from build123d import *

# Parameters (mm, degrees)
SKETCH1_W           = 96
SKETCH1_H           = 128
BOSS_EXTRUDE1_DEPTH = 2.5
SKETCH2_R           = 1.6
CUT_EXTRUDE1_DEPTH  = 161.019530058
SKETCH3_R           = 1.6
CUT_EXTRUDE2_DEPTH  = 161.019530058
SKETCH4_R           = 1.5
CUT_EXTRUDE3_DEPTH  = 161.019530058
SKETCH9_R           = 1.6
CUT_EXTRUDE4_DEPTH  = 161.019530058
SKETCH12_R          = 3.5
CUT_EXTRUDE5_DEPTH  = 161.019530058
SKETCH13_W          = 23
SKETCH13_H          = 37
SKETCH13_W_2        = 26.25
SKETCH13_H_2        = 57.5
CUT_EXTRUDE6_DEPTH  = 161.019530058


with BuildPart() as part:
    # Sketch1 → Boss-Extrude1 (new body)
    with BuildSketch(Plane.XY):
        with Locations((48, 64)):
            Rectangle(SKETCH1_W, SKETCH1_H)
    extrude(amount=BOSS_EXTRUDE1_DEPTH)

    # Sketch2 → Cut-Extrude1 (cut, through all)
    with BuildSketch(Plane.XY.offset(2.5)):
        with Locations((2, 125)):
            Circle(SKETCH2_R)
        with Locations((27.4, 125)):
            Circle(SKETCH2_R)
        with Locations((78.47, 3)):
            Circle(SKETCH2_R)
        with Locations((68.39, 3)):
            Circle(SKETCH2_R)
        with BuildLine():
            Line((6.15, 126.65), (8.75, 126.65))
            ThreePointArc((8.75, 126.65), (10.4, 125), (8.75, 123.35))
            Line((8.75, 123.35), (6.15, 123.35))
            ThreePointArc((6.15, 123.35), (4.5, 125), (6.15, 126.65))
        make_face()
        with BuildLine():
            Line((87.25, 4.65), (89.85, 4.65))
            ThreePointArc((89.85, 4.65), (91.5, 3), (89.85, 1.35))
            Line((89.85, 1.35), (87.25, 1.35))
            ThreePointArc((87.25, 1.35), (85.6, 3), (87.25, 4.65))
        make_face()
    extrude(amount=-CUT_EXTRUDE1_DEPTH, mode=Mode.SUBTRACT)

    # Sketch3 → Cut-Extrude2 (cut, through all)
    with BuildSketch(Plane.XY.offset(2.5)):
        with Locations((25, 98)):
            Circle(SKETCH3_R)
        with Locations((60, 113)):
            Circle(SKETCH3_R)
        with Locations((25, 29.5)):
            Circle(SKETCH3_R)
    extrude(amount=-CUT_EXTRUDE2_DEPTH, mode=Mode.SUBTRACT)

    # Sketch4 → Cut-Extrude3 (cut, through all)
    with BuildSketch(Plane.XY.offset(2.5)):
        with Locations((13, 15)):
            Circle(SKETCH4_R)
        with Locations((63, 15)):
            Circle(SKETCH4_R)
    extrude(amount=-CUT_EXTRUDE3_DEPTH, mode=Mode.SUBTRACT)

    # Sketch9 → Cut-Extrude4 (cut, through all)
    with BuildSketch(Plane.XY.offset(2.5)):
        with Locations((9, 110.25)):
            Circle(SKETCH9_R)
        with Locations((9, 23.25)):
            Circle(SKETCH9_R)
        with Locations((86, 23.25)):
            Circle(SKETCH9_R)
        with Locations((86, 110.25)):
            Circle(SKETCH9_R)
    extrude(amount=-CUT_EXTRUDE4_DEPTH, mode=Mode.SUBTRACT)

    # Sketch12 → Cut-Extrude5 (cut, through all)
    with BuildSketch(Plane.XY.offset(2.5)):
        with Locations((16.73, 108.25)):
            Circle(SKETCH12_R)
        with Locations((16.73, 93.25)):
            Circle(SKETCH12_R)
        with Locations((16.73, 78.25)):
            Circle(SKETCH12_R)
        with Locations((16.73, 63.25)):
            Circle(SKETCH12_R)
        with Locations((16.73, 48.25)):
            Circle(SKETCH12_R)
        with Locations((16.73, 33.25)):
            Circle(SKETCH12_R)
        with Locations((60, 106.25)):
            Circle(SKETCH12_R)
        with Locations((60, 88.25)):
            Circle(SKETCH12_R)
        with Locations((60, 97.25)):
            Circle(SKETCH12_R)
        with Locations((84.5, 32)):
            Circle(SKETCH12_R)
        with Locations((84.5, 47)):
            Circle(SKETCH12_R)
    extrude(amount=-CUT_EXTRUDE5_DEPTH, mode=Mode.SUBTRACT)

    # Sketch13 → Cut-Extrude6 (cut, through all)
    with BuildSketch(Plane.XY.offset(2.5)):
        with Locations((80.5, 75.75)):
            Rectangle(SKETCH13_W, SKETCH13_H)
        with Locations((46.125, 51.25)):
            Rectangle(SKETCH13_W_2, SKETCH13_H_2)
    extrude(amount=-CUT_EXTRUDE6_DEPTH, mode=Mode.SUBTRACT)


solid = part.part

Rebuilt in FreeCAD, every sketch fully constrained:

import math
import FreeCAD as App
import Part
import Sketcher
from FreeCAD import Vector


def add_polygon(sketch, points):
    """Adds a closed chain of lines whose ends are joined by coincident constraints."""
    first, n = sketch.GeometryCount, len(points)
    for a, b in zip(points, points[1:] + points[:1]):
        sketch.addGeometry(Part.LineSegment(App.Vector(*a, 0), App.Vector(*b, 0)), False)
    for i in range(n):
        sketch.addConstraint(Sketcher.Constraint("Coincident", first + i, 2, first + (i + 1) % n, 1))

doc = App.newDocument("Part")
params = doc.addObject("Spreadsheet::Sheet", "Params")
for row, (alias, value) in enumerate([
    ("sketch1_width", "96 mm"),
    ("sketch1_height", "128 mm"),
    ("pad1_length", "2.5 mm"),
    ("sketch2_diameter", "3.2 mm"),
    ("sketch2_radius", "1.65 mm"),
    ("sketch2_width", "2.6 mm"),
    ("sketch3_diameter", "3.2 mm"),
    ("sketch4_diameter", "3 mm"),
    ("sketch5_diameter", "3.2 mm"),
    ("sketch6_diameter", "7 mm"),
    ("sketch7_width", "23 mm"),
    ("sketch7_height", "37 mm"),
    ("sketch7_height2", "57.5 mm"),
    ("sketch7_width2", "26.25 mm"),
], start=1):
    params.set(f"A{row}", alias)
    params.set(f"B{row}", "=" + value)
    params.setAlias(f"B{row}", alias)

body = doc.addObject("PartDesign::Body", "Body")

# Sketch on XY plane
sketch1 = doc.addObject("Sketcher::SketchObject", "Sketch")
body.addObject(sketch1)
sketch1.AttachmentSupport = (doc.XY_Plane, [""])
sketch1.MapMode = "FlatFace"
add_polygon(sketch1, [(0, 128), (0, 0), (96, 0), (96, 128)])  # lines 0-3
sketch1.addConstraint([
    Sketcher.Constraint("Vertical", 0),
    Sketcher.Constraint("Horizontal", 1),
    Sketcher.Constraint("Vertical", 2),
    Sketcher.Constraint("Horizontal", 3),
    Sketcher.Constraint("Coincident", 0, 2, -1, 1),
    Sketcher.Constraint("DistanceX", 1, 1, 1, 2, 96.0),
    Sketcher.Constraint("DistanceY", 0, 2, 0, 1, 128.0),
])
sketch1.setExpression("Constraints[9]", "Params.sketch1_width")
sketch1.setExpression("Constraints[10]", "Params.sketch1_height")
pad1 = doc.addObject("PartDesign::Pad", "Pad")
body.addObject(pad1)
pad1.Profile = sketch1
pad1.setExpression("Length", "Params.pad1_length")

# Sketch on XY plane
sketch2 = doc.addObject("Sketcher::SketchObject", "Sketch001")
body.addObject(sketch2)
sketch2.AttachmentSupport = (doc.XY_Plane, [""])
sketch2.MapMode = "FlatFace"
sketch2.AttachmentOffset = App.Placement(Vector(0, 0, 2.5), App.Rotation())
sketch2.addGeometry([
    Part.Circle(Vector(2, 125, 0), Vector(0, 0, 1), 1.6),  # 0
    Part.Circle(Vector(27.4, 125, 0), Vector(0, 0, 1), 1.6),  # 1
    Part.Circle(Vector(78.47, 3, 0), Vector(0, 0, 1), 1.6),  # 2
    Part.Circle(Vector(68.39, 3, 0), Vector(0, 0, 1), 1.6),  # 3
    Part.LineSegment(Vector(8.75, 126.65, 0), Vector(6.15, 126.65, 0)),  # 4
    Part.ArcOfCircle(Part.Circle(Vector(6.15, 125, 0), Vector(0, 0, 1), 1.65), math.radians(90), math.radians(270)),  # 5
    Part.LineSegment(Vector(6.15, 123.35, 0), Vector(8.75, 123.35, 0)),  # 6
    Part.ArcOfCircle(Part.Circle(Vector(8.75, 125, 0), Vector(0, 0, 1), 1.65), math.radians(-90), math.radians(90)),  # 7
    Part.LineSegment(Vector(89.85, 4.65, 0), Vector(87.25, 4.65, 0)),  # 8
    Part.ArcOfCircle(Part.Circle(Vector(87.25, 3, 0), Vector(0, 0, 1), 1.65), math.radians(90), math.radians(270)),  # 9
    Part.LineSegment(Vector(87.25, 1.35, 0), Vector(89.85, 1.35, 0)),  # 10
    Part.ArcOfCircle(Part.Circle(Vector(89.85, 3, 0), Vector(0, 0, 1), 1.65), math.radians(-90), math.radians(90)),  # 11
], False)
sketch2.addConstraint([
    Sketcher.Constraint("Tangent", 4, 2, 5, 1),
    Sketcher.Constraint("Tangent", 5, 2, 6, 1),
    Sketcher.Constraint("Tangent", 6, 2, 7, 1),
    Sketcher.Constraint("Tangent", 7, 2, 4, 1),
    Sketcher.Constraint("Tangent", 8, 2, 9, 1),
    Sketcher.Constraint("Tangent", 9, 2, 10, 1),
    Sketcher.Constraint("Tangent", 10, 2, 11, 1),
    Sketcher.Constraint("Tangent", 11, 2, 8, 1),
    Sketcher.Constraint("Horizontal", 4),
    Sketcher.Constraint("Horizontal", 6),
    Sketcher.Constraint("Horizontal", 8),
    Sketcher.Constraint("Horizontal", 10),
    Sketcher.Constraint("Equal", 0, 1),
    Sketcher.Constraint("Equal", 1, 2),
    Sketcher.Constraint("Equal", 2, 3),
    Sketcher.Constraint("Equal", 7, 9),
    Sketcher.Constraint("Horizontal", 0, 3, 1, 3),
    Sketcher.Constraint("Horizontal", 2, 3, 3, 3),
    Sketcher.Constraint("Horizontal", 1, 3, 5, 3),
    Sketcher.Constraint("Horizontal", 3, 3, 9, 3),
    Sketcher.Constraint("Equal", 6, 8),
    Sketcher.Constraint("Diameter", 0, 3.2),
    Sketcher.Constraint("Radius", 5, 1.65),
    Sketcher.Constraint("DistanceX", 4, 2, 4, 1, 2.6),
    Sketcher.Constraint("DistanceX", -1, 1, 0, 3, 2.0),
    Sketcher.Constraint("DistanceY", -1, 1, 0, 3, 125.0),
    Sketcher.Constraint("DistanceY", -1, 1, 2, 3, 3.0),
    Sketcher.Constraint("DistanceX", -1, 1, 1, 3, 27.4),
    Sketcher.Constraint("DistanceX", 7, 3, 9, 3, 78.5),
    Sketcher.Constraint("DistanceX", -1, 1, 2, 3, 78.47),
    Sketcher.Constraint("DistanceX", -1, 1, 3, 3, 68.39),
    Sketcher.Constraint("DistanceX", -1, 1, 5, 3, 6.15),
])
sketch2.setExpression("Constraints[21]", "Params.sketch2_diameter")
sketch2.setExpression("Constraints[22]", "Params.sketch2_radius")
sketch2.setExpression("Constraints[23]", "Params.sketch2_width")
pocket1 = doc.addObject("PartDesign::Pocket", "Pocket")
body.addObject(pocket1)
pocket1.Profile = sketch2
pocket1.Type = "ThroughAll"

# Sketch on XY plane
sketch3 = doc.addObject("Sketcher::SketchObject", "Sketch002")
body.addObject(sketch3)
sketch3.AttachmentSupport = (doc.XY_Plane, [""])
sketch3.MapMode = "FlatFace"
sketch3.AttachmentOffset = App.Placement(Vector(0, 0, 2.5), App.Rotation())
sketch3.addGeometry([
    Part.Circle(Vector(25, 98, 0), Vector(0, 0, 1), 1.6),
    Part.Circle(Vector(60, 113, 0), Vector(0, 0, 1), 1.6),
    Part.Circle(Vector(25, 29.5, 0), Vector(0, 0, 1), 1.6),
], False)
sketch3.addConstraint([
    Sketcher.Constraint("Equal", 0, 1),
    Sketcher.Constraint("Equal", 1, 2),
    Sketcher.Constraint("Vertical", 0, 3, 2, 3),
    Sketcher.Constraint("Diameter", 0, 3.2),
    Sketcher.Constraint("DistanceX", -1, 1, 0, 3, 25.0),
    Sketcher.Constraint("DistanceY", -1, 1, 0, 3, 98.0),
    Sketcher.Constraint("DistanceX", -1, 1, 1, 3, 60.0),
    Sketcher.Constraint("DistanceY", -1, 1, 1, 3, 113.0),
    Sketcher.Constraint("DistanceY", -1, 1, 2, 3, 29.5),
])
sketch3.setExpression("Constraints[3]", "Params.sketch3_diameter")
pocket2 = doc.addObject("PartDesign::Pocket", "Pocket001")
body.addObject(pocket2)
pocket2.Profile = sketch3
pocket2.Type = "ThroughAll"

# Sketch on XY plane
sketch4 = doc.addObject("Sketcher::SketchObject", "Sketch003")
body.addObject(sketch4)
sketch4.AttachmentSupport = (doc.XY_Plane, [""])
sketch4.MapMode = "FlatFace"
sketch4.AttachmentOffset = App.Placement(Vector(0, 0, 2.5), App.Rotation())
sketch4.addGeometry([
    Part.Circle(Vector(13, 15, 0), Vector(0, 0, 1), 1.5),
    Part.Circle(Vector(63, 15, 0), Vector(0, 0, 1), 1.5),
], False)
sketch4.addConstraint([
    Sketcher.Constraint("Equal", 0, 1),
    Sketcher.Constraint("Horizontal", 0, 3, 1, 3),
    Sketcher.Constraint("Diameter", 0, 3.0),
    Sketcher.Constraint("DistanceX", -1, 1, 0, 3, 13.0),
    Sketcher.Constraint("DistanceY", -1, 1, 0, 3, 15.0),
    Sketcher.Constraint("DistanceX", -1, 1, 1, 3, 63.0),
])
sketch4.setExpression("Constraints[2]", "Params.sketch4_diameter")
pocket3 = doc.addObject("PartDesign::Pocket", "Pocket002")
body.addObject(pocket3)
pocket3.Profile = sketch4
pocket3.Type = "ThroughAll"

# Sketch on XY plane
sketch5 = doc.addObject("Sketcher::SketchObject", "Sketch004")
body.addObject(sketch5)
sketch5.AttachmentSupport = (doc.XY_Plane, [""])
sketch5.MapMode = "FlatFace"
sketch5.AttachmentOffset = App.Placement(Vector(0, 0, 2.5), App.Rotation())
sketch5.addGeometry([
    Part.Circle(Vector(9, 110.25, 0), Vector(0, 0, 1), 1.6),
    Part.Circle(Vector(9, 23.25, 0), Vector(0, 0, 1), 1.6),
    Part.Circle(Vector(86, 23.25, 0), Vector(0, 0, 1), 1.6),
    Part.Circle(Vector(86, 110.25, 0), Vector(0, 0, 1), 1.6),
], False)
sketch5.addConstraint([
    Sketcher.Constraint("Equal", 0, 1),
    Sketcher.Constraint("Equal", 1, 2),
    Sketcher.Constraint("Equal", 2, 3),
    Sketcher.Constraint("Horizontal", 1, 3, 2, 3),
    Sketcher.Constraint("Horizontal", 0, 3, 3, 3),
    Sketcher.Constraint("Vertical", 0, 3, 1, 3),
    Sketcher.Constraint("Vertical", 2, 3, 3, 3),
    Sketcher.Constraint("Diameter", 0, 3.2),
    Sketcher.Constraint("DistanceX", -1, 1, 0, 3, 9.0),
    Sketcher.Constraint("DistanceX", -1, 1, 2, 3, 86.0),
    Sketcher.Constraint("DistanceY", 1, 3, 0, 3, 87.0),
    Sketcher.Constraint("DistanceY", -1, 1, 0, 3, 110.25),
])
sketch5.setExpression("Constraints[7]", "Params.sketch5_diameter")
pocket4 = doc.addObject("PartDesign::Pocket", "Pocket003")
body.addObject(pocket4)
pocket4.Profile = sketch5
pocket4.Type = "ThroughAll"

# Sketch on XY plane
sketch6 = doc.addObject("Sketcher::SketchObject", "Sketch005")
body.addObject(sketch6)
sketch6.AttachmentSupport = (doc.XY_Plane, [""])
sketch6.MapMode = "FlatFace"
sketch6.AttachmentOffset = App.Placement(Vector(0, 0, 2.5), App.Rotation())
sketch6.addGeometry([
    Part.Circle(Vector(16.73, 108.25, 0), Vector(0, 0, 1), 3.5),  # 0
    Part.Circle(Vector(16.73, 93.25, 0), Vector(0, 0, 1), 3.5),  # 1
    Part.Circle(Vector(16.73, 78.25, 0), Vector(0, 0, 1), 3.5),  # 2
    Part.Circle(Vector(16.73, 63.25, 0), Vector(0, 0, 1), 3.5),  # 3
    Part.Circle(Vector(16.73, 48.25, 0), Vector(0, 0, 1), 3.5),  # 4
    Part.Circle(Vector(16.73, 33.25, 0), Vector(0, 0, 1), 3.5),  # 5
    Part.Circle(Vector(60, 106.25, 0), Vector(0, 0, 1), 3.5),  # 6
    Part.Circle(Vector(60, 88.25, 0), Vector(0, 0, 1), 3.5),  # 7
    Part.Circle(Vector(60, 97.25, 0), Vector(0, 0, 1), 3.5),  # 8
    Part.Circle(Vector(84.5, 32, 0), Vector(0, 0, 1), 3.5),  # 9
    Part.Circle(Vector(84.5, 47, 0), Vector(0, 0, 1), 3.5),  # 10
], False)
sketch6.addConstraint([
    Sketcher.Constraint("Equal", 0, 1),
    Sketcher.Constraint("Equal", 1, 2),
    Sketcher.Constraint("Equal", 2, 3),
    Sketcher.Constraint("Equal", 3, 4),
    Sketcher.Constraint("Equal", 4, 5),
    Sketcher.Constraint("Equal", 5, 6),
    Sketcher.Constraint("Equal", 6, 7),
    Sketcher.Constraint("Equal", 7, 8),
    Sketcher.Constraint("Equal", 8, 9),
    Sketcher.Constraint("Equal", 9, 10),
    Sketcher.Constraint("Vertical", 0, 3, 1, 3),
    Sketcher.Constraint("Vertical", 1, 3, 2, 3),
    Sketcher.Constraint("Vertical", 2, 3, 3, 3),
    Sketcher.Constraint("Vertical", 3, 3, 4, 3),
    Sketcher.Constraint("Vertical", 4, 3, 5, 3),
    Sketcher.Constraint("Vertical", 6, 3, 7, 3),
    Sketcher.Constraint("Vertical", 7, 3, 8, 3),
    Sketcher.Constraint("Vertical", 9, 3, 10, 3),
    Sketcher.Constraint("Diameter", 0, 7.0),
    Sketcher.Constraint("DistanceX", -1, 1, 6, 3, 60.0),
    Sketcher.Constraint("DistanceY", -1, 1, 9, 3, 32.0),
    Sketcher.Constraint("DistanceY", -1, 1, 10, 3, 47.0),
    Sketcher.Constraint("DistanceY", 1, 3, 0, 3, 15.0),
    Sketcher.Constraint("DistanceY", 2, 3, 1, 3, 15.0),
    Sketcher.Constraint("DistanceY", 3, 3, 2, 3, 15.0),
    Sketcher.Constraint("DistanceY", 4, 3, 3, 3, 15.0),
    Sketcher.Constraint("DistanceY", 5, 3, 4, 3, 15.0),
    Sketcher.Constraint("DistanceY", 6, 3, 0, 3, 2.0),
    Sketcher.Constraint("DistanceY", 7, 3, 6, 3, 18.0),
    Sketcher.Constraint("DistanceY", 8, 3, 6, 3, 9.0),
    Sketcher.Constraint("DistanceX", -1, 1, 9, 3, 84.5),
    Sketcher.Constraint("DistanceX", -1, 1, 0, 3, 16.73),
    Sketcher.Constraint("DistanceY", -1, 1, 0, 3, 108.25),
])
sketch6.setExpression("Constraints[18]", "Params.sketch6_diameter")
pocket5 = doc.addObject("PartDesign::Pocket", "Pocket004")
body.addObject(pocket5)
pocket5.Profile = sketch6
pocket5.Type = "ThroughAll"

# Sketch on XY plane
sketch7 = doc.addObject("Sketcher::SketchObject", "Sketch006")
body.addObject(sketch7)
sketch7.AttachmentSupport = (doc.XY_Plane, [""])
sketch7.MapMode = "FlatFace"
sketch7.AttachmentOffset = App.Placement(Vector(0, 0, 2.5), App.Rotation())
add_polygon(sketch7, [(69, 94.25), (69, 57.25), (92, 57.25), (92, 94.25)])  # lines 0-3
add_polygon(sketch7, [(33, 80), (33, 22.5), (59.25, 22.5), (59.25, 80)])  # lines 4-7
sketch7.addConstraint([
    Sketcher.Constraint("Vertical", 0),
    Sketcher.Constraint("Horizontal", 1),
    Sketcher.Constraint("Vertical", 2),
    Sketcher.Constraint("Horizontal", 3),
    Sketcher.Constraint("Vertical", 4),
    Sketcher.Constraint("Horizontal", 5),
    Sketcher.Constraint("Vertical", 6),
    Sketcher.Constraint("Horizontal", 7),
    Sketcher.Constraint("DistanceX", 1, 1, 1, 2, 23.0),
    Sketcher.Constraint("DistanceY", 0, 2, 0, 1, 37.0),
    Sketcher.Constraint("DistanceY", 4, 2, 4, 1, 57.5),
    Sketcher.Constraint("DistanceX", -1, 1, 0, 2, 69.0),
    Sketcher.Constraint("DistanceX", -1, 1, 4, 2, 33.0),
    Sketcher.Constraint("DistanceY", -1, 1, 6, 2, 80.0),
    Sketcher.Constraint("DistanceX", 5, 1, 5, 2, 26.25),
    Sketcher.Constraint("DistanceY", -1, 1, 0, 2, 57.25),
])
sketch7.setExpression("Constraints[16]", "Params.sketch7_width")
sketch7.setExpression("Constraints[17]", "Params.sketch7_height")
sketch7.setExpression("Constraints[18]", "Params.sketch7_height2")
sketch7.setExpression("Constraints[22]", "Params.sketch7_width2")
pocket6 = doc.addObject("PartDesign::Pocket", "Pocket005")
body.addObject(pocket6)
pocket6.Profile = sketch7
pocket6.Type = "ThroughAll"

doc.recompute()
